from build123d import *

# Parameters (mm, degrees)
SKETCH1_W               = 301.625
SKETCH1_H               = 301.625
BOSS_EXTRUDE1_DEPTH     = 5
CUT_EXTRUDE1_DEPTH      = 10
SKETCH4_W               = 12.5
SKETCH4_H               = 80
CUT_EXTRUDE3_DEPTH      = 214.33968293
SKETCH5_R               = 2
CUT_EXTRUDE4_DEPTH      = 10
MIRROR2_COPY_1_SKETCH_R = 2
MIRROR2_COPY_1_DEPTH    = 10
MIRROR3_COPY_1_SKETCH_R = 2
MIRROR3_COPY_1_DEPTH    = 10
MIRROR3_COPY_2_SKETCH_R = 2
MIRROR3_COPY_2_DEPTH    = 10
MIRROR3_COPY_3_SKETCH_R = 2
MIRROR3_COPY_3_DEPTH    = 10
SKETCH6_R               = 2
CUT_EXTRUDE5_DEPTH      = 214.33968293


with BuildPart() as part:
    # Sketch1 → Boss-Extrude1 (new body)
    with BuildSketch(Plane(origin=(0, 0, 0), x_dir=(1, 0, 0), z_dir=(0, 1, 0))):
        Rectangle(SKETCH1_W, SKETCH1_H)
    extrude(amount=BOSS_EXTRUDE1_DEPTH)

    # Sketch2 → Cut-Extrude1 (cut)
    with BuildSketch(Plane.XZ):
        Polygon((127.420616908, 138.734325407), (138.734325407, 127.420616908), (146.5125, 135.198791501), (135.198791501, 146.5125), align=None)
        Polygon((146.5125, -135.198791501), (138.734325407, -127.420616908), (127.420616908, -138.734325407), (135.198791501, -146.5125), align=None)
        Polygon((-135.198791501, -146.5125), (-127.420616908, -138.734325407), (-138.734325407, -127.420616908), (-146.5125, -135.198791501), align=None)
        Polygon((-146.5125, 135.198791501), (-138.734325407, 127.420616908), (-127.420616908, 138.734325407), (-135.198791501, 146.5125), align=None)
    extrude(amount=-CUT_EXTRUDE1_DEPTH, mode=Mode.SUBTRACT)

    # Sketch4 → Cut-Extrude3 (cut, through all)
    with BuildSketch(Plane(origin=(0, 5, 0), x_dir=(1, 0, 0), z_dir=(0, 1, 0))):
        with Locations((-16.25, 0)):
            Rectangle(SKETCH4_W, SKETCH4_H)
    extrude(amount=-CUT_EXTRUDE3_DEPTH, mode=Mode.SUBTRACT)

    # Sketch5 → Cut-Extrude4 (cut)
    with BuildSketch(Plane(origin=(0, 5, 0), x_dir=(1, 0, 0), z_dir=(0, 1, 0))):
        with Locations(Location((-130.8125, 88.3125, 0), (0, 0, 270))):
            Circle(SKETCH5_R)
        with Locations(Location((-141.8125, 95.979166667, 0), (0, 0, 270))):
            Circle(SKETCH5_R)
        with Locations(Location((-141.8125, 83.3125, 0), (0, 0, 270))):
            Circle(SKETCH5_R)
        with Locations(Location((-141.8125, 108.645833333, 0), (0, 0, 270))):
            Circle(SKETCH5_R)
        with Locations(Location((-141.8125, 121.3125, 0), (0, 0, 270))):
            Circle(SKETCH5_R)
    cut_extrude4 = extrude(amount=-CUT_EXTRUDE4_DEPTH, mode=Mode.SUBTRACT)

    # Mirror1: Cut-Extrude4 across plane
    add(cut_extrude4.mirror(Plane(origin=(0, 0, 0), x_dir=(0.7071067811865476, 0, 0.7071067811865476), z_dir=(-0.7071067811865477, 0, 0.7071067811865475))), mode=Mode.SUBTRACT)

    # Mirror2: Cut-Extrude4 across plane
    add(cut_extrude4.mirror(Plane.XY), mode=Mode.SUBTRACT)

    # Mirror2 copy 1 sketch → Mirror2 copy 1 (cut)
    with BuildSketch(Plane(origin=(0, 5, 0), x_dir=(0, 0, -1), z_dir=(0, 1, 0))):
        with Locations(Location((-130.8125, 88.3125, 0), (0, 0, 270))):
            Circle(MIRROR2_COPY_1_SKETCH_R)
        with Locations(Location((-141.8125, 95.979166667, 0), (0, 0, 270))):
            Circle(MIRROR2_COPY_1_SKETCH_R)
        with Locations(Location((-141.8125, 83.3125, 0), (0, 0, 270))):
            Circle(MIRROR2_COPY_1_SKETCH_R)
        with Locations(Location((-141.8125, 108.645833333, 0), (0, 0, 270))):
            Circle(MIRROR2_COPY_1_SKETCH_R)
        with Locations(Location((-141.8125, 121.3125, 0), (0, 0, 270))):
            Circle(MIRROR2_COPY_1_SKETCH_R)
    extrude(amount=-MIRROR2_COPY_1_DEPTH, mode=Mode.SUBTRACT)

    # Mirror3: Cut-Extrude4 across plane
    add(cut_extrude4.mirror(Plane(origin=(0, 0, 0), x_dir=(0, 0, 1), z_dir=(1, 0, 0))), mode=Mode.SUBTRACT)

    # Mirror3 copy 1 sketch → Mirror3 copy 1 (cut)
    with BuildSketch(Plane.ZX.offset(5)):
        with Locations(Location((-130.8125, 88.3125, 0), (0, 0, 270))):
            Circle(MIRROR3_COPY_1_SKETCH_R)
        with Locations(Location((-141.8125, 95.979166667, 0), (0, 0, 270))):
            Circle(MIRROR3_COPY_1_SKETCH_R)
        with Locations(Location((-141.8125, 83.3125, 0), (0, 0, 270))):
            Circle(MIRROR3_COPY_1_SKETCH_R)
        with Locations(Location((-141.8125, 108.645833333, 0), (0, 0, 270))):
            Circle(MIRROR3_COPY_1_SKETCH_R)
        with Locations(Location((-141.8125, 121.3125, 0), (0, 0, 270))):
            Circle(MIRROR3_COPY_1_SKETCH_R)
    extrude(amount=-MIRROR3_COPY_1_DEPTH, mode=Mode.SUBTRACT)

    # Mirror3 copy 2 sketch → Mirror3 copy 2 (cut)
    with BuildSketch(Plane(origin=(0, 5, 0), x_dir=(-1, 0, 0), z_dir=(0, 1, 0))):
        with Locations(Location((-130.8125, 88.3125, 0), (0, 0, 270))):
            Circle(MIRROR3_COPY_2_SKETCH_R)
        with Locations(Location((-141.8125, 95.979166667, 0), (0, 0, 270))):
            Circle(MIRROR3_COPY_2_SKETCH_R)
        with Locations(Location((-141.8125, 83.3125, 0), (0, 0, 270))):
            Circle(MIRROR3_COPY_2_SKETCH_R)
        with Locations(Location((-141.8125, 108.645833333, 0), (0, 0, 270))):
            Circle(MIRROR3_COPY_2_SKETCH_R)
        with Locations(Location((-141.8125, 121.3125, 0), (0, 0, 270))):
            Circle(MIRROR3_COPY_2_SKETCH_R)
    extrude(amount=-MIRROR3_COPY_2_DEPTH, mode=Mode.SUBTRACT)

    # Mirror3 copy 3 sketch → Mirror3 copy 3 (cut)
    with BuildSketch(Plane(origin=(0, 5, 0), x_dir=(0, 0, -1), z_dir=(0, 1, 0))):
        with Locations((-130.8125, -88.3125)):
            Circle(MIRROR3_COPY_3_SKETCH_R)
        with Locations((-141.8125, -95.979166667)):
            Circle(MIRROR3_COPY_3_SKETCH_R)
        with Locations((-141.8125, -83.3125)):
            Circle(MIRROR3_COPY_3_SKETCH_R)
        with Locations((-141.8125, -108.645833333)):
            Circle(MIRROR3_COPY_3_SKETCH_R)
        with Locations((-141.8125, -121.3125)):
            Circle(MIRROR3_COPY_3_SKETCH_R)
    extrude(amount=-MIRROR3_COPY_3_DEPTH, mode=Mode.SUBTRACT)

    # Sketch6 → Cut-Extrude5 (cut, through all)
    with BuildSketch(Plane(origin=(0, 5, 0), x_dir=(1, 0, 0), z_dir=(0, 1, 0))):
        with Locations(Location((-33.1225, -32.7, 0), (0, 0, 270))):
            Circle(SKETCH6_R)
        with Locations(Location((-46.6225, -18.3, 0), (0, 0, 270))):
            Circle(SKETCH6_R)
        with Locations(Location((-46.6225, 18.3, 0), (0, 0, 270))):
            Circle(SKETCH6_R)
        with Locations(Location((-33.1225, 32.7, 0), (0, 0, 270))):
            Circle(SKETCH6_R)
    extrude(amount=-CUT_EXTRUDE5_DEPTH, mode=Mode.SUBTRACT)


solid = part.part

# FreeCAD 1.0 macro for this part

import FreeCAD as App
import Part
import Sketcher
Q = App.Units.Quantity


def add_polygon(sketch, points):
    """Adds a closed chain of lines whose ends are joined by coincident constraints."""
    first, n = sketch.GeometryCount, len(points)
    for a, b in zip(points, points[1:] + points[:1]):
        sketch.addGeometry(Part.LineSegment(App.Vector(*a, 0), App.Vector(*b, 0)), False)
    for i in range(n):
        sketch.addConstraint(Sketcher.Constraint("Coincident", first + i, 2, first + (i + 1) % n, 1))

doc = App.newDocument("Part")
body = doc.addObject("PartDesign::Body", "Body")

# Sketch on XZ plane
sketch1 = body.newObject("Sketcher::SketchObject", "Sketch")
sketch1.AttachmentSupport = (doc.getObject("XZ_Plane"), [""])
sketch1.MapMode = "FlatFace"
add_polygon(sketch1, [(-151, -151), (-151, 151), (151, 151), (151, -151)])  # lines 0-3
sketch1.addConstraint(Sketcher.Constraint("Vertical", 0))
sketch1.addConstraint(Sketcher.Constraint("Horizontal", 1))
sketch1.addConstraint(Sketcher.Constraint("Vertical", 2))
sketch1.addConstraint(Sketcher.Constraint("Horizontal", 3))
sketch1.addConstraint(Sketcher.Constraint("Symmetric", 0, 2, 2, 2, -1, 1))
sketch1.addConstraint(Sketcher.Constraint("Equal", 3, 0))
sketch1.addConstraint(Sketcher.Constraint("DistanceX", 1, 1, 1, 2, Q("301.625 mm")))
pad1 = body.newObject("PartDesign::Pad", "Pad")
pad1.Profile = sketch1
pad1.Length = 5
pad1.Reversed = True

# Sketch on XZ plane
sketch2 = body.newObject("Sketcher::SketchObject", "Sketch001")
sketch2.AttachmentSupport = (doc.getObject("XZ_Plane"), [""])
sketch2.MapMode = "FlatFace"
add_polygon(sketch2, [(127, 139), (139, 127), (147, 135), (135, 147)])  # lines 0-3
add_polygon(sketch2, [(147, -135), (139, -127), (127, -139), (135, -147)])  # lines 4-7
add_polygon(sketch2, [(-135, -147), (-127, -139), (-139, -127), (-147, -135)])  # lines 8-11
add_polygon(sketch2, [(-147, 135), (-139, 127), (-127, 139), (-135, 147)])  # lines 12-15
sketch2.addConstraint(Sketcher.Constraint("Symmetric", 3, 2, 8, 2, -1, 1))
sketch2.addConstraint(Sketcher.Constraint("Symmetric", 0, 2, 9, 2, -1, 1))
sketch2.addConstraint(Sketcher.Constraint("Symmetric", 1, 2, 10, 2, -1, 1))
sketch2.addConstraint(Sketcher.Constraint("Symmetric", 2, 2, 11, 2, -1, 1))
sketch2.addConstraint(Sketcher.Constraint("Symmetric", 4, 2, 12, 2, -1, 1))
sketch2.addConstraint(Sketcher.Constraint("Symmetric", 5, 2, 13, 2, -1, 1))
sketch2.addConstraint(Sketcher.Constraint("Symmetric", 6, 2, 14, 2, -1, 1))
sketch2.addConstraint(Sketcher.Constraint("Symmetric", 7, 2, 15, 2, -1, 1))
sketch2.addConstraint(Sketcher.Constraint("Symmetric", 5, 2, 8, 2, -2))
sketch2.addConstraint(Sketcher.Constraint("Symmetric", 4, 2, 9, 2, -2))
sketch2.addConstraint(Sketcher.Constraint("Symmetric", 7, 2, 10, 2, -2))
sketch2.addConstraint(Sketcher.Constraint("Symmetric", 6, 2, 11, 2, -2))
sketch2.addConstraint(Sketcher.Constraint("Perpendicular", 0, 1))
sketch2.addConstraint(Sketcher.Constraint("Perpendicular", 1, 2))
sketch2.addConstraint(Sketcher.Constraint("Perpendicular", 2, 3))
sketch2.addConstraint(Sketcher.Constraint("Perpendicular", 3, 4))
sketch2.addConstraint(Sketcher.Constraint("Distance", 0, Q("16 mm")))
sketch2.addConstraint(Sketcher.Constraint("Distance", 1, Q("11 mm")))
sketch2.addConstraint(Sketcher.Constraint("DistanceX", -1, 1, 1, 2, Q("146.5125 mm")))
sketch2.addConstraint(Sketcher.Constraint("DistanceY", -1, 1, 2, 2, Q("146.5125 mm")))
pocket1 = body.newObject("PartDesign::Pocket", "Pocket")
pocket1.Profile = sketch2
pocket1.Length = 10

# Sketch on XZ plane
sketch3 = body.newObject("Sketcher::SketchObject", "Sketch002")
sketch3.AttachmentSupport = (doc.getObject("XZ_Plane"), [""])
sketch3.MapMode = "FlatFace"
sketch3.AttachmentOffset = App.Placement(App.Vector(0, 0, -5), App.Rotation())
add_polygon(sketch3, [(-22, -40), (-22, 40), (-10, 40), (-10, -40)])  # lines 0-3
sketch3.addConstraint(Sketcher.Constraint("Vertical", 0))
sketch3.addConstraint(Sketcher.Constraint("Horizontal", 1))
sketch3.addConstraint(Sketcher.Constraint("Vertical", 2))
sketch3.addConstraint(Sketcher.Constraint("Horizontal", 3))
sketch3.addConstraint(Sketcher.Constraint("DistanceY", 0, 1, 0, 2, Q("80 mm")))
sketch3.addConstraint(Sketcher.Constraint("DistanceX", 1, 1, 1, 2, Q("12.5 mm")))
sketch3.addConstraint(Sketcher.Constraint("DistanceY", -1, 1, 0, 2, Q("40 mm")))
sketch3.addConstraint(Sketcher.Constraint("DistanceX", 1, 2, -1, 1, Q("10 mm")))
pocket2 = body.newObject("PartDesign::Pocket", "Pocket001")
pocket2.Profile = sketch3
pocket2.Type = "ThroughAll"
pocket2.Reversed = True

# Sketch on XZ plane
sketch4 = body.newObject("Sketcher::SketchObject", "Sketch003")
sketch4.AttachmentSupport = (doc.getObject("XZ_Plane"), [""])
sketch4.MapMode = "FlatFace"
sketch4.AttachmentOffset = App.Placement(App.Vector(0, 0, -5), App.Rotation())
sketch4.addGeometry(Part.Circle(App.Vector(-130.8, -88.3, 0), App.Vector(0, 0, 1), 2), False)
sketch4.addGeometry(Part.Circle(App.Vector(-141.8, -96, 0), App.Vector(0, 0, 1), 2), False)
sketch4.addGeometry(Part.Circle(App.Vector(-141.8, -83.3, 0), App.Vector(0, 0, 1), 2), False)
sketch4.addGeometry(Part.Circle(App.Vector(-141.8, -108.6, 0), App.Vector(0, 0, 1), 2), False)
sketch4.addGeometry(Part.Circle(App.Vector(-141.8, -121.3, 0), App.Vector(0, 0, 1), 2), False)
sketch4.addConstraint(Sketcher.Constraint("Equal", 0, 1))
sketch4.addConstraint(Sketcher.Constraint("Equal", 1, 2))
sketch4.addConstraint(Sketcher.Constraint("Equal", 2, 3))
sketch4.addConstraint(Sketcher.Constraint("Equal", 3, 4))
sketch4.addConstraint(Sketcher.Constraint("Vertical", 1, 3, 2, 3))
sketch4.addConstraint(Sketcher.Constraint("Vertical", 2, 3, 3, 3))
sketch4.addConstraint(Sketcher.Constraint("Vertical", 3, 3, 4, 3))
sketch4.addConstraint(Sketcher.Constraint("Diameter", 0, Q("4 mm")))
sketch4.addConstraint(Sketcher.Constraint("DistanceX", 1, 3, 0, 3, Q("11 mm")))
sketch4.addConstraint(Sketcher.Constraint("DistanceY", 0, 3, 2, 3, Q("5 mm")))
sketch4.addConstraint(Sketcher.Constraint("DistanceY", 4, 3, 0, 3, Q("33 mm")))
sketch4.addConstraint(Sketcher.Constraint("DistanceX", 0, 3, -1, 1, Q("130.8125 mm")))
sketch4.addConstraint(Sketcher.Constraint("DistanceY", 0, 3, -1, 1, Q("88.3125 mm")))
sketch4.addConstraint(Sketcher.Constraint("DistanceY", 1, 3, -1, 1, Q("95.979167 mm")))
sketch4.addConstraint(Sketcher.Constraint("DistanceY", 3, 3, -1, 1, Q("108.645833 mm")))
pocket3 = body.newObject("PartDesign::Pocket", "Pocket002")
pocket3.Profile = sketch4
pocket3.Length = 10
pocket3.Reversed = True
doc.recompute()

datumplane = body.newObject("PartDesign::Plane", "DatumPlane")
datumplane.Placement = App.Placement(App.Vector(0, 0, 0), App.Rotation(App.Vector(-0.707106781, 0, -0.707106781), App.Vector(0, -1, 0), App.Vector(-0.707106781, 0, 0.707106781), "ZXY"))
mirrored = body.newObject("PartDesign::Mirrored", "Mirrored")
mirrored.Originals = [pocket3]
mirrored.MirrorPlane = (datumplane, [""])
body.Tip = mirrored
doc.recompute()

mirrored2 = body.newObject("PartDesign::Mirrored", "Mirrored001")
mirrored2.Originals = [pocket3]
mirrored2.MirrorPlane = (doc.getObject("XY_Plane"), [""])
body.Tip = mirrored2

# Sketch on XZ plane
sketch5 = body.newObject("Sketcher::SketchObject", "Sketch004")
sketch5.AttachmentSupport = (doc.getObject("XZ_Plane"), [""])
sketch5.MapMode = "FlatFace"
sketch5.AttachmentOffset = App.Placement(App.Vector(0, 0, -5), App.Rotation())
sketch5.addGeometry(Part.Circle(App.Vector(-88.3, 130.8, 0), App.Vector(0, 0, 1), 2), False)
sketch5.addGeometry(Part.Circle(App.Vector(-96, 141.8, 0), App.Vector(0, 0, 1), 2), False)
sketch5.addGeometry(Part.Circle(App.Vector(-83.3, 141.8, 0), App.Vector(0, 0, 1), 2), False)
sketch5.addGeometry(Part.Circle(App.Vector(-108.6, 141.8, 0), App.Vector(0, 0, 1), 2), False)
sketch5.addGeometry(Part.Circle(App.Vector(-121.3, 141.8, 0), App.Vector(0, 0, 1), 2), False)
sketch5.addConstraint(Sketcher.Constraint("Equal", 0, 1))
sketch5.addConstraint(Sketcher.Constraint("Equal", 1, 2))
sketch5.addConstraint(Sketcher.Constraint("Equal", 2, 3))
sketch5.addConstraint(Sketcher.Constraint("Equal", 3, 4))
sketch5.addConstraint(Sketcher.Constraint("Horizontal", 1, 3, 2, 3))
sketch5.addConstraint(Sketcher.Constraint("Horizontal", 2, 3, 3, 3))
sketch5.addConstraint(Sketcher.Constraint("Horizontal", 3, 3, 4, 3))
sketch5.addConstraint(Sketcher.Constraint("Diameter", 0, Q("4 mm")))
sketch5.addConstraint(Sketcher.Constraint("DistanceY", 0, 3, 1, 3, Q("11 mm")))
sketch5.addConstraint(Sketcher.Constraint("DistanceX", 0, 3, 2, 3, Q("5 mm")))
sketch5.addConstraint(Sketcher.Constraint("DistanceX", 4, 3, 0, 3, Q("33 mm")))
sketch5.addConstraint(Sketcher.Constraint("DistanceX", 0, 3, -1, 1, Q("88.3125 mm")))
sketch5.addConstraint(Sketcher.Constraint("DistanceY", -1, 1, 0, 3, Q("130.8125 mm")))
sketch5.addConstraint(Sketcher.Constraint("DistanceX", 1, 3, -1, 1, Q("95.979167 mm")))
sketch5.addConstraint(Sketcher.Constraint("DistanceX", 3, 3, -1, 1, Q("108.645833 mm")))
pocket4 = body.newObject("PartDesign::Pocket", "Pocket003")
pocket4.Profile = sketch5
pocket4.Length = 10
pocket4.Reversed = True
doc.recompute()

mirrored3 = body.newObject("PartDesign::Mirrored", "Mirrored002")
mirrored3.Originals = [pocket3]
mirrored3.MirrorPlane = (doc.getObject("YZ_Plane"), [""])
body.Tip = mirrored3

# Sketch on XZ plane
sketch6 = body.newObject("Sketcher::SketchObject", "Sketch005")
sketch6.AttachmentSupport = (doc.getObject("XZ_Plane"), [""])
sketch6.MapMode = "FlatFace"
sketch6.AttachmentOffset = App.Placement(App.Vector(0, 0, -5), App.Rotation())
sketch6.addGeometry(Part.Circle(App.Vector(88.3, -130.8, 0), App.Vector(0, 0, 1), 2), False)
sketch6.addGeometry(Part.Circle(App.Vector(96, -141.8, 0), App.Vector(0, 0, 1), 2), False)
sketch6.addGeometry(Part.Circle(App.Vector(83.3, -141.8, 0), App.Vector(0, 0, 1), 2), False)
sketch6.addGeometry(Part.Circle(App.Vector(108.6, -141.8, 0), App.Vector(0, 0, 1), 2), False)
sketch6.addGeometry(Part.Circle(App.Vector(121.3, -141.8, 0), App.Vector(0, 0, 1), 2), False)
sketch6.addConstraint(Sketcher.Constraint("Equal", 0, 1))
sketch6.addConstraint(Sketcher.Constraint("Equal", 1, 2))
sketch6.addConstraint(Sketcher.Constraint("Equal", 2, 3))
sketch6.addConstraint(Sketcher.Constraint("Equal", 3, 4))
sketch6.addConstraint(Sketcher.Constraint("Horizontal", 1, 3, 2, 3))
sketch6.addConstraint(Sketcher.Constraint("Horizontal", 2, 3, 3, 3))
sketch6.addConstraint(Sketcher.Constraint("Horizontal", 3, 3, 4, 3))
sketch6.addConstraint(Sketcher.Constraint("Diameter", 0, Q("4 mm")))
sketch6.addConstraint(Sketcher.Constraint("DistanceY", 1, 3, 0, 3, Q("11 mm")))
sketch6.addConstraint(Sketcher.Constraint("DistanceX", 2, 3, 0, 3, Q("5 mm")))
sketch6.addConstraint(Sketcher.Constraint("DistanceX", 0, 3, 4, 3, Q("33 mm")))
sketch6.addConstraint(Sketcher.Constraint("DistanceX", -1, 1, 0, 3, Q("88.3125 mm")))
sketch6.addConstraint(Sketcher.Constraint("DistanceY", 0, 3, -1, 1, Q("130.8125 mm")))
sketch6.addConstraint(Sketcher.Constraint("DistanceX", -1, 1, 1, 3, Q("95.979167 mm")))
sketch6.addConstraint(Sketcher.Constraint("DistanceX", -1, 1, 3, 3, Q("108.645833 mm")))
pocket5 = body.newObject("PartDesign::Pocket", "Pocket004")
pocket5.Profile = sketch6
pocket5.Length = 10
pocket5.Reversed = True

# Sketch on XZ plane
sketch7 = body.newObject("Sketcher::SketchObject", "Sketch006")
sketch7.AttachmentSupport = (doc.getObject("XZ_Plane"), [""])
sketch7.MapMode = "FlatFace"
sketch7.AttachmentOffset = App.Placement(App.Vector(0, 0, -5), App.Rotation())
sketch7.addGeometry(Part.Circle(App.Vector(130.8, 88.3, 0), App.Vector(0, 0, 1), 2), False)
sketch7.addGeometry(Part.Circle(App.Vector(141.8, 96, 0), App.Vector(0, 0, 1), 2), False)
sketch7.addGeometry(Part.Circle(App.Vector(141.8, 83.3, 0), App.Vector(0, 0, 1), 2), False)
sketch7.addGeometry(Part.Circle(App.Vector(141.8, 108.6, 0), App.Vector(0, 0, 1), 2), False)
sketch7.addGeometry(Part.Circle(App.Vector(141.8, 121.3, 0), App.Vector(0, 0, 1), 2), False)
sketch7.addConstraint(Sketcher.Constraint("Equal", 0, 1))
sketch7.addConstraint(Sketcher.Constraint("Equal", 1, 2))
sketch7.addConstraint(Sketcher.Constraint("Equal", 2, 3))
sketch7.addConstraint(Sketcher.Constraint("Equal", 3, 4))
sketch7.addConstraint(Sketcher.Constraint("Vertical", 1, 3, 2, 3))
sketch7.addConstraint(Sketcher.Constraint("Vertical", 2, 3, 3, 3))
sketch7.addConstraint(Sketcher.Constraint("Vertical", 3, 3, 4, 3))
sketch7.addConstraint(Sketcher.Constraint("Diameter", 0, Q("4 mm")))
sketch7.addConstraint(Sketcher.Constraint("DistanceX", 0, 3, 1, 3, Q("11 mm")))
sketch7.addConstraint(Sketcher.Constraint("DistanceY", 2, 3, 0, 3, Q("5 mm")))
sketch7.addConstraint(Sketcher.Constraint("DistanceY", 0, 3, 4, 3, Q("33 mm")))
sketch7.addConstraint(Sketcher.Constraint("DistanceX", -1, 1, 0, 3, Q("130.8125 mm")))
sketch7.addConstraint(Sketcher.Constraint("DistanceY", -1, 1, 0, 3, Q("88.3125 mm")))
sketch7.addConstraint(Sketcher.Constraint("DistanceY", -1, 1, 1, 3, Q("95.979167 mm")))
sketch7.addConstraint(Sketcher.Constraint("DistanceY", -1, 1, 3, 3, Q("108.645833 mm")))
pocket6 = body.newObject("PartDesign::Pocket", "Pocket005")
pocket6.Profile = sketch7
pocket6.Length = 10
pocket6.Reversed = True

# Sketch on XZ plane
sketch8 = body.newObject("Sketcher::SketchObject", "Sketch007")
sketch8.AttachmentSupport = (doc.getObject("XZ_Plane"), [""])
sketch8.MapMode = "FlatFace"
sketch8.AttachmentOffset = App.Placement(App.Vector(0, 0, -5), App.Rotation())
sketch8.addGeometry(Part.Circle(App.Vector(88.3, 130.8, 0), App.Vector(0, 0, 1), 2), False)
sketch8.addGeometry(Part.Circle(App.Vector(96, 141.8, 0), App.Vector(0, 0, 1), 2), False)
sketch8.addGeometry(Part.Circle(App.Vector(83.3, 141.8, 0), App.Vector(0, 0, 1), 2), False)
sketch8.addGeometry(Part.Circle(App.Vector(108.6, 141.8, 0), App.Vector(0, 0, 1), 2), False)
sketch8.addGeometry(Part.Circle(App.Vector(121.3, 141.8, 0), App.Vector(0, 0, 1), 2), False)
sketch8.addConstraint(Sketcher.Constraint("Equal", 0, 1))
sketch8.addConstraint(Sketcher.Constraint("Equal", 1, 2))
sketch8.addConstraint(Sketcher.Constraint("Equal", 2, 3))
sketch8.addConstraint(Sketcher.Constraint("Equal", 3, 4))
sketch8.addConstraint(Sketcher.Constraint("Horizontal", 1, 3, 2, 3))
sketch8.addConstraint(Sketcher.Constraint("Horizontal", 2, 3, 3, 3))
sketch8.addConstraint(Sketcher.Constraint("Horizontal", 3, 3, 4, 3))
sketch8.addConstraint(Sketcher.Constraint("Diameter", 0, Q("4 mm")))
sketch8.addConstraint(Sketcher.Constraint("DistanceY", 0, 3, 1, 3, Q("11 mm")))
sketch8.addConstraint(Sketcher.Constraint("DistanceX", 2, 3, 0, 3, Q("5 mm")))
sketch8.addConstraint(Sketcher.Constraint("DistanceX", 0, 3, 4, 3, Q("33 mm")))
sketch8.addConstraint(Sketcher.Constraint("DistanceX", -1, 1, 0, 3, Q("88.3125 mm")))
sketch8.addConstraint(Sketcher.Constraint("DistanceY", -1, 1, 0, 3, Q("130.8125 mm")))
sketch8.addConstraint(Sketcher.Constraint("DistanceX", -1, 1, 1, 3, Q("95.979167 mm")))
sketch8.addConstraint(Sketcher.Constraint("DistanceX", -1, 1, 3, 3, Q("108.645833 mm")))
pocket7 = body.newObject("PartDesign::Pocket", "Pocket006")
pocket7.Profile = sketch8
pocket7.Length = 10
pocket7.Reversed = True

# Sketch on XZ plane
sketch9 = body.newObject("Sketcher::SketchObject", "Sketch008")
sketch9.AttachmentSupport = (doc.getObject("XZ_Plane"), [""])
sketch9.MapMode = "FlatFace"
sketch9.AttachmentOffset = App.Placement(App.Vector(0, 0, -5), App.Rotation())
sketch9.addGeometry(Part.Circle(App.Vector(-33.1, 32.7, 0), App.Vector(0, 0, 1), 2), False)
sketch9.addGeometry(Part.Circle(App.Vector(-46.6, 18.3, 0), App.Vector(0, 0, 1), 2), False)
sketch9.addGeometry(Part.Circle(App.Vector(-46.6, -18.3, 0), App.Vector(0, 0, 1), 2), False)
sketch9.addGeometry(Part.Circle(App.Vector(-33.1, -32.7, 0), App.Vector(0, 0, 1), 2), False)
sketch9.addConstraint(Sketcher.Constraint("Equal", 0, 1))
sketch9.addConstraint(Sketcher.Constraint("Equal", 1, 2))
sketch9.addConstraint(Sketcher.Constraint("Equal", 2, 3))
sketch9.addConstraint(Sketcher.Constraint("Symmetric", 1, 3, 2, 3, -1))
sketch9.addConstraint(Sketcher.Constraint("Symmetric", 0, 3, 3, 3, -1))
sketch9.addConstraint(Sketcher.Constraint("Diameter", 0, Q("4 mm")))
sketch9.addConstraint(Sketcher.Constraint("DistanceY", 2, 3, 0, 3, Q("51 mm")))
sketch9.addConstraint(Sketcher.Constraint("DistanceY", -1, 1, 0, 3, Q("32.7 mm")))
sketch9.addConstraint(Sketcher.Constraint("DistanceX", 1, 3, 0, 3, Q("13.5 mm")))
sketch9.addConstraint(Sketcher.Constraint("DistanceX", 0, 3, -1, 1, Q("33.1225 mm")))
pocket8 = body.newObject("PartDesign::Pocket", "Pocket007")
pocket8.Profile = sketch9
pocket8.Type = "ThroughAll"
pocket8.Reversed = True

doc.recompute()
